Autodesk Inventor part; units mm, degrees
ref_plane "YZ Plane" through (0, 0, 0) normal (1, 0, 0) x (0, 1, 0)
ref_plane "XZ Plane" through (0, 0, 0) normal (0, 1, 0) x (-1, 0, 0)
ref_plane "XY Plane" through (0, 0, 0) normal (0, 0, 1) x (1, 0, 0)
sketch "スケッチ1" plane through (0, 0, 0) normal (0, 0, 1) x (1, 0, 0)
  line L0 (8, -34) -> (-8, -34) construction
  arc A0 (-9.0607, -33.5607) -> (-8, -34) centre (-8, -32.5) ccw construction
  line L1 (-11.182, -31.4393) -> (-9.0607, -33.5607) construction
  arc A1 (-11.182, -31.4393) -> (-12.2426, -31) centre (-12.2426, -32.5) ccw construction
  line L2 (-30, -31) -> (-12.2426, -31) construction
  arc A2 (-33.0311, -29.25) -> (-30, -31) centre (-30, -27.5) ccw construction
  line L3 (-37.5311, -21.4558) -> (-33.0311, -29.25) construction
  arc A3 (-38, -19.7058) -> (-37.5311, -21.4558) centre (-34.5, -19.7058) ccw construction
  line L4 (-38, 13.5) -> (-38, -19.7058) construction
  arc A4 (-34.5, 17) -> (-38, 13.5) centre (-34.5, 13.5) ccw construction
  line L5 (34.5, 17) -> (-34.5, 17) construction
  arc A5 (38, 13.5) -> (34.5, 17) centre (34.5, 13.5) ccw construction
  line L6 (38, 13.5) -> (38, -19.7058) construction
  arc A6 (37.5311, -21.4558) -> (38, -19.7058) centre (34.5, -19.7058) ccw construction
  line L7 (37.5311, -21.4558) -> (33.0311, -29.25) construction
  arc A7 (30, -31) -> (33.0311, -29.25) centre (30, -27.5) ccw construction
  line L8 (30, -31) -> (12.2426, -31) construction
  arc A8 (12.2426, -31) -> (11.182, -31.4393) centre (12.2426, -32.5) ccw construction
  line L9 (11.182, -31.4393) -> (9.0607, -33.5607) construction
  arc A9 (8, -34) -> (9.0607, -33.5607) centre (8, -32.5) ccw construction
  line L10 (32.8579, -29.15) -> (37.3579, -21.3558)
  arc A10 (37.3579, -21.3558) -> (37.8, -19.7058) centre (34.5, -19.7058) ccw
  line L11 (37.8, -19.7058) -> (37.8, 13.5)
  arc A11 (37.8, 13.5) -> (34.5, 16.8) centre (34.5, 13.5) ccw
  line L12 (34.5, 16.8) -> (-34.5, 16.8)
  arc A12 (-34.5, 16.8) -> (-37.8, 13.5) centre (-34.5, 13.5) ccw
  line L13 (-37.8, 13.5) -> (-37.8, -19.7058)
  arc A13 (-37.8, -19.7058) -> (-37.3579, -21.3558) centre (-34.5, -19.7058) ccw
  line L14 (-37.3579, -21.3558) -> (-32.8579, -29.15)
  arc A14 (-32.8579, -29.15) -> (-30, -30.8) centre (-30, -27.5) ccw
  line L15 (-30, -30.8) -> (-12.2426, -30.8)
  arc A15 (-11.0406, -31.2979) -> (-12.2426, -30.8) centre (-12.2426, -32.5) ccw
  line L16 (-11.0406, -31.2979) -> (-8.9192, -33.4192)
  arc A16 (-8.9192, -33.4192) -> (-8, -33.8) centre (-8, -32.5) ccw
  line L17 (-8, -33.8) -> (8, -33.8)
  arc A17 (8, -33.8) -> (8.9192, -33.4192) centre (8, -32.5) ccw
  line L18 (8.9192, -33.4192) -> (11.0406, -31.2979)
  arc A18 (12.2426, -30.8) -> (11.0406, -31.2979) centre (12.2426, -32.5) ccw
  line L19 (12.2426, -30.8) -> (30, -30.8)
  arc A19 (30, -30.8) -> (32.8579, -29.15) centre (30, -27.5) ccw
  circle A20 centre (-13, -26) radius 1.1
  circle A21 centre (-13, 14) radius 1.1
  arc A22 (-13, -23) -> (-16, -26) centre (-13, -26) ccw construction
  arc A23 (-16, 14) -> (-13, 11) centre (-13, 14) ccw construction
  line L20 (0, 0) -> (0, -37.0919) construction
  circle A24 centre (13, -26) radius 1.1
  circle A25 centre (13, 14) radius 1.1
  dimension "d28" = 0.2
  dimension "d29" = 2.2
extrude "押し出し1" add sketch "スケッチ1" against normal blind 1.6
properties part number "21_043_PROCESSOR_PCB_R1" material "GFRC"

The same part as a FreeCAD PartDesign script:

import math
import FreeCAD as App
import Part
import Sketcher
Q = App.Units.Quantity

doc = App.newDocument("Part")
params = doc.addObject("Spreadsheet::Sheet", "Params")
for row, (alias, value) in enumerate([
    ("sketch1_diameter", "2.2 mm"),
    ("sketch1_radius", "3.3 mm"),
    ("sketch1_radius2", "1.7 mm"),
    ("sketch1_radius3", "1.3 mm"),
    ("sketch1_width", "69 mm"),
    ("pad1_length", "1.6 mm"),
], start=1):
    params.set(f"A{row}", alias)
    params.set(f"B{row}", "=" + value)
    params.setAlias(f"B{row}", alias)

body = doc.addObject("PartDesign::Body", "Body")

sketch1 = body.newObject("Sketcher::SketchObject", "Sketch")
sketch1.AttachmentSupport = (doc.getObject("XY_Plane"), [""])
sketch1.MapMode = "FlatFace"
sketch1.addGeometry([
    Part.ArcOfCircle(Part.Circle(App.Vector(30, -27.5, 0), App.Vector(0, 0, 1), 3.3), math.radians(-90), math.radians(-30)),
    Part.LineSegment(App.Vector(32.9, -29.1, 0), App.Vector(37.4, -21.4, 0)),
    Part.ArcOfCircle(Part.Circle(App.Vector(34.5, -19.7, 0), App.Vector(0, 0, 1), 3.3), math.radians(-30), math.radians(0)),
    Part.LineSegment(App.Vector(37.8, -19.7, 0), App.Vector(37.8, 13.5, 0)),
    Part.ArcOfCircle(Part.Circle(App.Vector(34.5, 13.5, 0), App.Vector(0, 0, 1), 3.3), math.radians(0), math.radians(90)),
    Part.LineSegment(App.Vector(34.5, 16.8, 0), App.Vector(-34.5, 16.8, 0)),
    Part.ArcOfCircle(Part.Circle(App.Vector(-34.5, 13.5, 0), App.Vector(0, 0, 1), 3.3), math.radians(90), math.radians(180)),
    Part.LineSegment(App.Vector(-37.8, 13.5, 0), App.Vector(-37.8, -19.7, 0)),
    Part.ArcOfCircle(Part.Circle(App.Vector(-34.5, -19.7, 0), App.Vector(0, 0, 1), 3.3), math.radians(180), math.radians(210)),
    Part.LineSegment(App.Vector(-37.4, -21.4, 0), App.Vector(-32.9, -29.1, 0)),
    Part.ArcOfCircle(Part.Circle(App.Vector(-30, -27.5, 0), App.Vector(0, 0, 1), 3.3), math.radians(-150), math.radians(-90)),
    Part.LineSegment(App.Vector(-30, -30.8, 0), App.Vector(-12.2, -30.8, 0)),
    Part.ArcOfCircle(Part.Circle(App.Vector(-12.2, -32.5, 0), App.Vector(0, 0, 1), 1.7), math.radians(45), math.radians(90)),
    Part.LineSegment(App.Vector(-11, -31.3, 0), App.Vector(-8.9, -33.4, 0)),
    Part.ArcOfCircle(Part.Circle(App.Vector(-8, -32.5, 0), App.Vector(0, 0, 1), 1.3), math.radians(-135), math.radians(-90)),
    Part.LineSegment(App.Vector(-8, -33.8, 0), App.Vector(8, -33.8, 0)),
    Part.ArcOfCircle(Part.Circle(App.Vector(8, -32.5, 0), App.Vector(0, 0, 1), 1.3), math.radians(-90), math.radians(-45)),
    Part.LineSegment(App.Vector(8.9, -33.4, 0), App.Vector(11, -31.3, 0)),
    Part.ArcOfCircle(Part.Circle(App.Vector(12.2, -32.5, 0), App.Vector(0, 0, 1), 1.7), math.radians(90), math.radians(135)),
    Part.LineSegment(App.Vector(12.2, -30.8, 0), App.Vector(30, -30.8, 0)),
    Part.Circle(App.Vector(-13, -26, 0), App.Vector(0, 0, 1), 1.1),
    Part.Circle(App.Vector(13, -26, 0), App.Vector(0, 0, 1), 1.1),
    Part.Circle(App.Vector(-13, 14, 0), App.Vector(0, 0, 1), 1.1),
    Part.Circle(App.Vector(13, 14, 0), App.Vector(0, 0, 1), 1.1),
], False)
sketch1.addConstraint([
    Sketcher.Constraint("Tangent", 0, 2, 1, 1),
    Sketcher.Constraint("Tangent", 1, 2, 2, 1),
    Sketcher.Constraint("Tangent", 2, 2, 3, 1),
    Sketcher.Constraint("Tangent", 3, 2, 4, 1),
    Sketcher.Constraint("Tangent", 4, 2, 5, 1),
    Sketcher.Constraint("Tangent", 5, 2, 6, 1),
    Sketcher.Constraint("Tangent", 6, 2, 7, 1),
    Sketcher.Constraint("Tangent", 7, 2, 8, 1),
    Sketcher.Constraint("Tangent", 8, 2, 9, 1),
    Sketcher.Constraint("Tangent", 9, 2, 10, 1),
    Sketcher.Constraint("Tangent", 10, 2, 11, 1),
    Sketcher.Constraint("Tangent", 11, 2, 12, 2),
    Sketcher.Constraint("Tangent", 12, 1, 13, 1),
    Sketcher.Constraint("Tangent", 13, 2, 14, 1),
    Sketcher.Constraint("Tangent", 14, 2, 15, 1),
    Sketcher.Constraint("Tangent", 15, 2, 16, 1),
    Sketcher.Constraint("Tangent", 16, 2, 17, 1),
    Sketcher.Constraint("Tangent", 17, 2, 18, 2),
    Sketcher.Constraint("Tangent", 18, 1, 19, 1),
    Sketcher.Constraint("Tangent", 19, 2, 0, 1),
    Sketcher.Constraint("Vertical", 3),
    Sketcher.Constraint("Horizontal", 5),
    Sketcher.Constraint("Vertical", 7),
    Sketcher.Constraint("Horizontal", 11),
    Sketcher.Constraint("Horizontal", 15),
    Sketcher.Constraint("Horizontal", 19),
    Sketcher.Constraint("Equal", 0, 2),
    Sketcher.Constraint("Equal", 2, 4),
    Sketcher.Constraint("Equal", 4, 6),
    Sketcher.Constraint("Equal", 6, 8),
    Sketcher.Constraint("Equal", 8, 10),
    Sketcher.Constraint("Equal", 14, 16),
    Sketcher.Constraint("Equal", 12, 18),
    Sketcher.Constraint("Equal", 20, 21),
    Sketcher.Constraint("Equal", 21, 22),
    Sketcher.Constraint("Equal", 22, 23),
    Sketcher.Constraint("Symmetric", 2, 3, 8, 3, -2),
    Sketcher.Constraint("Symmetric", 0, 3, 10, 3, -2),
    Sketcher.Constraint("Symmetric", 20, 3, 21, 3, -2),
    Sketcher.Constraint("Symmetric", 22, 3, 23, 3, -2),
    Sketcher.Constraint("Symmetric", 13, 2, 16, 2, -2),
    Sketcher.Constraint("Perpendicular", 13, 17),
    Sketcher.Constraint("Horizontal", 12, 3, 14, 3),
    Sketcher.Constraint("Vertical", 20, 3, 22, 3),
    Sketcher.Constraint("Diameter", 20, 2.2),
    Sketcher.Constraint("Radius", 0, 3.3),
    Sketcher.Constraint("Radius", 12, 1.7),
    Sketcher.Constraint("Radius", 14, 1.3),
    Sketcher.Constraint("DistanceX", 5, 2, 5, 1, 69.0),
    Sketcher.Constraint("DistanceX", 15, 1, 15, 2, 16.0),
    Sketcher.Constraint("Angle", 1, Q("60 deg")),
    Sketcher.Constraint("Distance", 1, 9.0),
    Sketcher.Constraint("DistanceX", 20, 3, -1, 1, 13.0),
    Sketcher.Constraint("DistanceY", 20, 3, -1, 1, 26.0),
    Sketcher.Constraint("DistanceY", -1, 1, 22, 3, 14.0),
    Sketcher.Constraint("DistanceY", 0, 3, 4, 3, 41.0),
    Sketcher.Constraint("DistanceY", 0, 3, -1, 1, 27.5),
])
sketch1.setExpression("Constraints[44]", "Params.sketch1_diameter")
sketch1.setExpression("Constraints[45]", "Params.sketch1_radius")
sketch1.setExpression("Constraints[46]", "Params.sketch1_radius2")
sketch1.setExpression("Constraints[47]", "Params.sketch1_radius3")
sketch1.setExpression("Constraints[48]", "Params.sketch1_width")
pad1 = body.newObject("PartDesign::Pad", "Pad")
pad1.Profile = sketch1
pad1.setExpression("Length", "Params.pad1_length")
pad1.Reversed = True

doc.recompute()
